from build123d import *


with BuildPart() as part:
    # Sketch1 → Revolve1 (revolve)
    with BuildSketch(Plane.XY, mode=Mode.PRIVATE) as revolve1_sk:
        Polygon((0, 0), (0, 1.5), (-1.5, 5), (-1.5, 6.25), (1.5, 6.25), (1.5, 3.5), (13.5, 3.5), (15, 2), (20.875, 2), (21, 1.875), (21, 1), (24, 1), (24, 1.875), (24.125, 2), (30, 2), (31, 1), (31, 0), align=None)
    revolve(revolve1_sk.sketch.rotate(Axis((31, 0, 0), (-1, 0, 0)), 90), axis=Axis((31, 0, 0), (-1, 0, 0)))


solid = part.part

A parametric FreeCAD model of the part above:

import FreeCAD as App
import Part
import Sketcher

V = App.Vector

doc = App.newDocument("Part")
body = doc.addObject("PartDesign::Body", "Body")

# Sketch on XY plane
sketch1 = body.newObject("Sketcher::SketchObject", "Sketch")
sketch1.AttachmentSupport = (doc.getObject("XY_Plane"), [""])
sketch1.MapMode = "FlatFace"
sketch1.addGeometry([
    Part.LineSegment(V(0, 1.5, 0), V(0, 0, 0)),  # 0
    Part.LineSegment(V(0, 0, 0), V(31, 0, 0)),  # 1
    Part.LineSegment(V(31, 0, 0), V(31, 1, 0)),  # 2
    Part.LineSegment(V(31, 1, 0), V(30, 2, 0)),  # 3
    Part.LineSegment(V(30, 2, 0), V(24.12, 2, 0)),  # 4
    Part.LineSegment(V(24.12, 2, 0), V(24, 1.88, 0)),  # 5
    Part.LineSegment(V(24, 1.88, 0), V(24, 1, 0)),  # 6
    Part.LineSegment(V(24, 1, 0), V(21, 1, 0)),  # 7
    Part.LineSegment(V(21, 1, 0), V(21, 1.88, 0)),  # 8
    Part.LineSegment(V(21, 1.88, 0), V(20.88, 2, 0)),  # 9
    Part.LineSegment(V(20.88, 2, 0), V(15, 2, 0)),  # 10
    Part.LineSegment(V(15, 2, 0), V(13.5, 3.5, 0)),  # 11
    Part.LineSegment(V(13.5, 3.5, 0), V(1.5, 3.5, 0)),  # 12
    Part.LineSegment(V(1.5, 3.5, 0), V(1.5, 6.25, 0)),  # 13
    Part.LineSegment(V(1.5, 6.25, 0), V(-1.5, 6.25, 0)),  # 14
    Part.LineSegment(V(-1.5, 6.25, 0), V(-1.5, 5, 0)),  # 15
    Part.LineSegment(V(-1.5, 5, 0), V(0, 1.5, 0)),  # 16
], False)
sketch1.addConstraint([
    Sketcher.Constraint("Coincident", 0, 2, 1, 1),
    Sketcher.Constraint("Coincident", 1, 2, 2, 1),
    Sketcher.Constraint("Coincident", 2, 2, 3, 1),
    Sketcher.Constraint("Coincident", 3, 2, 4, 1),
    Sketcher.Constraint("Coincident", 4, 2, 5, 1),
    Sketcher.Constraint("Coincident", 5, 2, 6, 1),
    Sketcher.Constraint("Coincident", 6, 2, 7, 1),
    Sketcher.Constraint("Coincident", 7, 2, 8, 1),
    Sketcher.Constraint("Coincident", 8, 2, 9, 1),
    Sketcher.Constraint("Coincident", 9, 2, 10, 1),
    Sketcher.Constraint("Coincident", 10, 2, 11, 1),
    Sketcher.Constraint("Coincident", 11, 2, 12, 1),
    Sketcher.Constraint("Coincident", 12, 2, 13, 1),
    Sketcher.Constraint("Coincident", 13, 2, 14, 1),
    Sketcher.Constraint("Coincident", 14, 2, 15, 1),
    Sketcher.Constraint("Coincident", 15, 2, 16, 1),
    Sketcher.Constraint("Coincident", 16, 2, 0, 1),
    Sketcher.Constraint("Vertical", 0),
    Sketcher.Constraint("Horizontal", 1),
    Sketcher.Constraint("Vertical", 2),
    Sketcher.Constraint("Horizontal", 4),
    Sketcher.Constraint("Vertical", 6),
    Sketcher.Constraint("Horizontal", 7),
    Sketcher.Constraint("Vertical", 8),
    Sketcher.Constraint("Horizontal", 10),
    Sketcher.Constraint("Horizontal", 12),
    Sketcher.Constraint("Vertical", 13),
    Sketcher.Constraint("Horizontal", 14),
    Sketcher.Constraint("Vertical", 15),
    Sketcher.Constraint("Coincident", 0, 2, -1, 1),
    Sketcher.Constraint("Perpendicular", 3, 5),
    Sketcher.Constraint("Perpendicular", 5, 9),
    Sketcher.Constraint("Parallel", 9, 11),
    Sketcher.Constraint("Horizontal", 2, 2, 6, 2),
    Sketcher.Constraint("Horizontal", 5, 2, 8, 2),
    Sketcher.Constraint("Horizontal", 4, 2, 9, 2),
    Sketcher.Constraint("Equal", 4, 10),
    Sketcher.Constraint("Equal", 7, 14),
    Sketcher.Constraint("Equal", 5, 9),
    Sketcher.Constraint("DistanceX", 1, 1, 1, 2, 31.0),
    Sketcher.Constraint("DistanceX", 7, 2, 7, 1, 3.0),
    Sketcher.Constraint("DistanceX", 12, 2, 12, 1, 12.0),
    Sketcher.Constraint("DistanceY", 2, 1, 2, 2, 1.0),
    Sketcher.Constraint("DistanceY", 0, 2, 0, 1, 1.5),
    Sketcher.Constraint("DistanceX", -1, 1, 3, 2, 30.0),
    Sketcher.Constraint("DistanceX", -1, 1, 5, 2, 24.0),
    Sketcher.Constraint("DistanceY", -1, 1, 15, 2, 5.0),
    Sketcher.Constraint("DistanceY", 16, 2, 12, 2, 2.0),
    Sketcher.Constraint("DistanceY", 13, 1, 13, 2, 2.75),
    Sketcher.Constraint("DistanceX", 4, 2, 4, 1, 5.875),
])
revolution = body.newObject("PartDesign::Revolution", "Revolution")
revolution.Profile = sketch1
revolution.ReferenceAxis = (sketch1, ["H_Axis"])
revolution.Angle = 360

doc.recompute()
